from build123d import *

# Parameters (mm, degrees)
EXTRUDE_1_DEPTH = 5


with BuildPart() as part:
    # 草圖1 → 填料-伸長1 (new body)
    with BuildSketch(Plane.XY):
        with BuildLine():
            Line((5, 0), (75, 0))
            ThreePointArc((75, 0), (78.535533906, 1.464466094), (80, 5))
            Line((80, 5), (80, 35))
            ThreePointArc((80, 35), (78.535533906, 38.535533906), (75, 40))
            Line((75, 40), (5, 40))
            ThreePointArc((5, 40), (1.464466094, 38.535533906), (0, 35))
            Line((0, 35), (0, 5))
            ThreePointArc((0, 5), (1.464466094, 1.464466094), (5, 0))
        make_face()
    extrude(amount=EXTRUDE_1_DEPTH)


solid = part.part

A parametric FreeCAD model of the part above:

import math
import FreeCAD as App
import Part
import Sketcher
from FreeCAD import Vector
Q = App.Units.Quantity

doc = App.newDocument("Part")
body = doc.addObject("PartDesign::Body", "Body")

# Sketch on XY plane
sketch1 = body.newObject("Sketcher::SketchObject", "Sketch")
sketch1.AttachmentSupport = (doc.getObject("XY_Plane"), [""])
sketch1.MapMode = "FlatFace"
sketch1.addGeometry([
    Part.LineSegment(Vector(5, 0, 0), Vector(75, 0, 0)),  # 0
    Part.ArcOfCircle(Part.Circle(Vector(75, 5, 0), Vector(0, 0, 1), 5), math.radians(-90), math.radians(0)),  # 1
    Part.LineSegment(Vector(80, 5, 0), Vector(80, 35, 0)),  # 2
    Part.ArcOfCircle(Part.Circle(Vector(75, 35, 0), Vector(0, 0, 1), 5), math.radians(0), math.radians(90)),  # 3
    Part.LineSegment(Vector(75, 40, 0), Vector(5, 40, 0)),  # 4
    Part.ArcOfCircle(Part.Circle(Vector(5, 35, 0), Vector(0, 0, 1), 5), math.radians(90), math.radians(180)),  # 5
    Part.LineSegment(Vector(0, 35, 0), Vector(0, 5, 0)),  # 6
    Part.ArcOfCircle(Part.Circle(Vector(5, 5, 0), Vector(0, 0, 1), 5), math.radians(180), math.radians(270)),  # 7
], False)
sketch1.addConstraint([
    Sketcher.Constraint("Tangent", 0, 2, 1, 1),
    Sketcher.Constraint("Tangent", 1, 2, 2, 1),
    Sketcher.Constraint("Tangent", 2, 2, 3, 1),
    Sketcher.Constraint("Tangent", 3, 2, 4, 1),
    Sketcher.Constraint("Tangent", 4, 2, 5, 1),
    Sketcher.Constraint("Tangent", 5, 2, 6, 1),
    Sketcher.Constraint("Tangent", 6, 2, 7, 1),
    Sketcher.Constraint("Tangent", 7, 2, 0, 1),
    Sketcher.Constraint("Horizontal", 0),
    Sketcher.Constraint("Vertical", 2),
    Sketcher.Constraint("Horizontal", 4),
    Sketcher.Constraint("Vertical", 6),
    Sketcher.Constraint("Equal", 1, 3),
    Sketcher.Constraint("Equal", 3, 5),
    Sketcher.Constraint("Equal", 5, 7),
    Sketcher.Constraint("PointOnObject", 0, 2, -1),
    Sketcher.Constraint("PointOnObject", 5, 2, -2),
    Sketcher.Constraint("Radius", 1, Q("5 mm")),
    Sketcher.Constraint("DistanceX", 0, 1, 0, 2, Q("70 mm")),
    Sketcher.Constraint("DistanceY", 2, 1, 2, 2, Q("30 mm")),
])
pad1 = body.newObject("PartDesign::Pad", "Pad")
pad1.Profile = sketch1
pad1.Length = 5

doc.recompute()
